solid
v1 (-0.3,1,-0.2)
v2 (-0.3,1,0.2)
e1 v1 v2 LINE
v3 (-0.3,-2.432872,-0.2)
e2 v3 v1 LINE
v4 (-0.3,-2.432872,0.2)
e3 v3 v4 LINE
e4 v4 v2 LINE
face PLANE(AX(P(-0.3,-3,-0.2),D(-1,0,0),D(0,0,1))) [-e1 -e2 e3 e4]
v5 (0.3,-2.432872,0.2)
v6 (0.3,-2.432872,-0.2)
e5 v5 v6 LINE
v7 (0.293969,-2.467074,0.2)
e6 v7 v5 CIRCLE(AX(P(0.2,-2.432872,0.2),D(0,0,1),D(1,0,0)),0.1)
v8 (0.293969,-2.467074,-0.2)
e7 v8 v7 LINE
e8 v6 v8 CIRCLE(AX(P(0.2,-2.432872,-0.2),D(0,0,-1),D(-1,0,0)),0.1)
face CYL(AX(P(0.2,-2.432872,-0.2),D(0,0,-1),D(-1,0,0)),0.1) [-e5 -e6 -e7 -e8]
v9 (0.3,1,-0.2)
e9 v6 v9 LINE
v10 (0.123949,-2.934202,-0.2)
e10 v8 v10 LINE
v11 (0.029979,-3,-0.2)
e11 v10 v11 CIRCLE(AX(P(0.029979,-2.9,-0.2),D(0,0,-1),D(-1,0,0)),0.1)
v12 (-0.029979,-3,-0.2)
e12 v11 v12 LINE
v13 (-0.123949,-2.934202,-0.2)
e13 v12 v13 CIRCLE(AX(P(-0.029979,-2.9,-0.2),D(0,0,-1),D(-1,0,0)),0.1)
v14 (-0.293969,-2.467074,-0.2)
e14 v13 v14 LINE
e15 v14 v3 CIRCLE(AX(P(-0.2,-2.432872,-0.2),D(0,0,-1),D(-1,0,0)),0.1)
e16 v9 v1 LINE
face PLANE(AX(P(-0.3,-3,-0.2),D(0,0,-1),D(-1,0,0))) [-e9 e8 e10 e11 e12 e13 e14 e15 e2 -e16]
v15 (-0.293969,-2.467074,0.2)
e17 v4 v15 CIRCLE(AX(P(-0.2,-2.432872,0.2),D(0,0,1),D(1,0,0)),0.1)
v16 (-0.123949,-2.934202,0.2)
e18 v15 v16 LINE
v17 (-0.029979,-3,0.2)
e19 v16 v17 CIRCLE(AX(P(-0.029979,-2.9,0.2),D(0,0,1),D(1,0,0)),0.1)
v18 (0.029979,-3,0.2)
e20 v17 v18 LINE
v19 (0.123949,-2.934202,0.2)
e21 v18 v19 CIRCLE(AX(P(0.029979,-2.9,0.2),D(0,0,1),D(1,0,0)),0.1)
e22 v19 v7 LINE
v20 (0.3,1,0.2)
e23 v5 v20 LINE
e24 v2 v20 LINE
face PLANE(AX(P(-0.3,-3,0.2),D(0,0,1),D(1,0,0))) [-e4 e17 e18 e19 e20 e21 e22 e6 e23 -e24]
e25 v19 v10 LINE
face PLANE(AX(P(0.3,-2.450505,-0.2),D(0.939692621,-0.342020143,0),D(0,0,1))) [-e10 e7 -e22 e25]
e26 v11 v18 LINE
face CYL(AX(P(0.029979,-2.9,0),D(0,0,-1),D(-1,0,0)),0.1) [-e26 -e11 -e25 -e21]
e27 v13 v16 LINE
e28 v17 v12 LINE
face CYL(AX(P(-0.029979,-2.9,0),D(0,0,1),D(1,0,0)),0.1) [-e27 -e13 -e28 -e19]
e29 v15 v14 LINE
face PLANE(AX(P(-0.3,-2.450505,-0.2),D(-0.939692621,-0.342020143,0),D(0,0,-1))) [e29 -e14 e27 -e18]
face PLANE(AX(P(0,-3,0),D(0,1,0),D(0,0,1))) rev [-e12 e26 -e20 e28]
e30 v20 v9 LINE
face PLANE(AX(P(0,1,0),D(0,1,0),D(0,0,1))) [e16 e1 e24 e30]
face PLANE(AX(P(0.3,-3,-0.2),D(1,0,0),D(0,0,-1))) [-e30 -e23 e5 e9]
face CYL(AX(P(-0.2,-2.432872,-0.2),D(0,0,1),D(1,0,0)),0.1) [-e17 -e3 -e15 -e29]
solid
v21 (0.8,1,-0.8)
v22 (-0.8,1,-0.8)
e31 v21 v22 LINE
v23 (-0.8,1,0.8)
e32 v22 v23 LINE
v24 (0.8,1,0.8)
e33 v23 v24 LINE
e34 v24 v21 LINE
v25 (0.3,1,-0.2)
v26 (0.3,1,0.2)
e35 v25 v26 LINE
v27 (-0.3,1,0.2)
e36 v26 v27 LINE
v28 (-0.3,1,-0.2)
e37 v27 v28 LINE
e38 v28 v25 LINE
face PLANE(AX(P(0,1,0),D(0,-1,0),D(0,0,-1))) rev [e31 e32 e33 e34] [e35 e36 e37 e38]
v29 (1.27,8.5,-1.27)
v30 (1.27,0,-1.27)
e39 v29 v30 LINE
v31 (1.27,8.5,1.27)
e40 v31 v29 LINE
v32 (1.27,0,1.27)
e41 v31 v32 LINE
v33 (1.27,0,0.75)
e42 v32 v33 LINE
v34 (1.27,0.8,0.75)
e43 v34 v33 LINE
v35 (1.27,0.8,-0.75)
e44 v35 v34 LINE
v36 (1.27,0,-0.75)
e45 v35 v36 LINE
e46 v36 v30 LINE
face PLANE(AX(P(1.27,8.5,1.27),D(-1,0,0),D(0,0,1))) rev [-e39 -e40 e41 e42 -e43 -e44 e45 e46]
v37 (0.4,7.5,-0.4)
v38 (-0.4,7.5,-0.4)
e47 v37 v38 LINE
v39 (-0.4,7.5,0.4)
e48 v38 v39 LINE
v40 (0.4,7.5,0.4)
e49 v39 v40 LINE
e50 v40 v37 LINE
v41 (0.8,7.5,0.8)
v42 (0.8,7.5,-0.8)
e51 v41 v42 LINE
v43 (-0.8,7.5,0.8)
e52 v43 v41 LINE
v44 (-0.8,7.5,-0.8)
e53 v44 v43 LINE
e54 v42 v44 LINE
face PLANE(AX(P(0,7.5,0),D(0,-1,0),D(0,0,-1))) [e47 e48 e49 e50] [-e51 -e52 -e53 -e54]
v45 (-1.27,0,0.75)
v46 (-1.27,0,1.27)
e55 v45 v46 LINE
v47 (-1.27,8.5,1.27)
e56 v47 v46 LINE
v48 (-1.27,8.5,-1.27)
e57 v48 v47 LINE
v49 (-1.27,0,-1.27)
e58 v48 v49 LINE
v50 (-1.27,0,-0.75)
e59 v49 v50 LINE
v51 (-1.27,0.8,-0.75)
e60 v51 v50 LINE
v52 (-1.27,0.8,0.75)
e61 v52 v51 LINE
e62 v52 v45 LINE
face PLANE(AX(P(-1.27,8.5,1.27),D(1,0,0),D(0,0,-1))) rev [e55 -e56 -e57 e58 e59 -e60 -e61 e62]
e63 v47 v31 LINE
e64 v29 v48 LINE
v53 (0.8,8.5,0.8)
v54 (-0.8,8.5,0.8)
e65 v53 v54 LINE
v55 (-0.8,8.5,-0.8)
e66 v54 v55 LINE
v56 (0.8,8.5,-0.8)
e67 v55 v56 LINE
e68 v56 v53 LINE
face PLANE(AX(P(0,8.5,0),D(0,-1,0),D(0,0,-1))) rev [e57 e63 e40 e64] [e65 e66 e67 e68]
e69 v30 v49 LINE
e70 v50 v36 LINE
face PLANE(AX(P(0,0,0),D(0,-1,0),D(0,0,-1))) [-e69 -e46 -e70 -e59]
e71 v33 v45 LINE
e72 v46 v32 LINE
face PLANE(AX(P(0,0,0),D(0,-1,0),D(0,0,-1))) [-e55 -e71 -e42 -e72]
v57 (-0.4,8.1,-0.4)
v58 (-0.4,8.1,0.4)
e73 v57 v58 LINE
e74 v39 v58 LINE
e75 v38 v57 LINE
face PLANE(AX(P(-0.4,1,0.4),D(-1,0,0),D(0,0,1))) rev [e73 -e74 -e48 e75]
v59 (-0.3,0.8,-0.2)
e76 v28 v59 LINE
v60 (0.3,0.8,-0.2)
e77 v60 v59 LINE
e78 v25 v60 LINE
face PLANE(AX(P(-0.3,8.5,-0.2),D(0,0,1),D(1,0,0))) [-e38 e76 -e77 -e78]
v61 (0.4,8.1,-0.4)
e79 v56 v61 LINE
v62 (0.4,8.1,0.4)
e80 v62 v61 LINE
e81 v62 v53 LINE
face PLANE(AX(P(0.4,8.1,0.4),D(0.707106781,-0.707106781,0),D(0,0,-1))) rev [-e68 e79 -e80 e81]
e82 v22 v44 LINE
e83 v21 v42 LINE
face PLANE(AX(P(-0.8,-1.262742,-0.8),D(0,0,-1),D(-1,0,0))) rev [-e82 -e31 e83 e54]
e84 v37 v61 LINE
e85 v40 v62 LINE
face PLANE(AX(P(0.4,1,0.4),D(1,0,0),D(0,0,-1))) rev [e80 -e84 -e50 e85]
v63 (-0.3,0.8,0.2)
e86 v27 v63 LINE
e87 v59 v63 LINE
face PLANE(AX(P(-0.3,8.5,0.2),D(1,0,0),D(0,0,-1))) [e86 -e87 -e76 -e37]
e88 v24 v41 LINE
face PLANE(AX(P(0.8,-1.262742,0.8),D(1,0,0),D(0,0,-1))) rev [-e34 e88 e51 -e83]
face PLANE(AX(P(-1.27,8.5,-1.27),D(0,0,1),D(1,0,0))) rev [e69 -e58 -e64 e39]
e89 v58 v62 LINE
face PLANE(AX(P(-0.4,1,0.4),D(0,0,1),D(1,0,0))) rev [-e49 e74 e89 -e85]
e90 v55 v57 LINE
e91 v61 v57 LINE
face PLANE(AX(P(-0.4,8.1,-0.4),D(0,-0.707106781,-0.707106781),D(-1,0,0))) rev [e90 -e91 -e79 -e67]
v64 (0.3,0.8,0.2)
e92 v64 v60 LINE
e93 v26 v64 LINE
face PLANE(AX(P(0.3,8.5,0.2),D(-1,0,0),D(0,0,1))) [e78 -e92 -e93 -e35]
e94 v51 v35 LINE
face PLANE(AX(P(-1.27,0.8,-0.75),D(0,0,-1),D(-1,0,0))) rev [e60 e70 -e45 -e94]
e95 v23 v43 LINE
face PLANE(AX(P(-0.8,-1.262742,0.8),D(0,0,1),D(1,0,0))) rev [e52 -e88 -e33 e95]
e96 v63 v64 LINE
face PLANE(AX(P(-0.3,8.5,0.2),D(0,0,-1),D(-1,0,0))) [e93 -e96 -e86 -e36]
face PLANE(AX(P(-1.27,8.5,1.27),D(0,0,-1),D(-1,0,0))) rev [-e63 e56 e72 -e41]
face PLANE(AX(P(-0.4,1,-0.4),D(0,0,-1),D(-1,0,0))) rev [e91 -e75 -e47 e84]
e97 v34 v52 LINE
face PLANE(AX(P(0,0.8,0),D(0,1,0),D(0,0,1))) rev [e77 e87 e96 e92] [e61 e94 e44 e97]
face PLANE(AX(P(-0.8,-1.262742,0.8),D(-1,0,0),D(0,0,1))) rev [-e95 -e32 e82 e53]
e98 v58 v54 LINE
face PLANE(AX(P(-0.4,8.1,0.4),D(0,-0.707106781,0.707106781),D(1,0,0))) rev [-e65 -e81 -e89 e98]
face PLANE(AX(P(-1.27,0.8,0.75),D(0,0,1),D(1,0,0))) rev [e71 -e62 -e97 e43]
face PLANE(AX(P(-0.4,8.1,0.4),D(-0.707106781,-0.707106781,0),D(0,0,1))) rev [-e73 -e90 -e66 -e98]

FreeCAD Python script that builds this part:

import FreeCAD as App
import Part
import Sketcher
Q = App.Units.Quantity


def edges_at(feature, points):
    """Names of the edges that pass closest to the given points."""
    edges = feature.Shape.Edges
    near = lambda p: min(range(len(edges)), key=lambda i: edges[i].distToShape(Part.Vertex(*p))[0])
    return sorted({f"Edge{near(p) + 1}" for p in points})

doc = App.newDocument("Part")
body = doc.addObject("PartDesign::Body", "Body")

# Sketch on XZ plane
sketch1 = doc.addObject("Sketcher::SketchObject", "Sketch")
body.addObject(sketch1)
sketch1.AttachmentSupport = (doc.XZ_Plane, [""])
sketch1.MapMode = "FlatFace"
sketch1.addGeometry(Part.LineSegment(App.Vector(-1.27, -1.27, 0), App.Vector(-1.27, 1.27, 0)), False)
sketch1.addGeometry(Part.LineSegment(App.Vector(-1.27, 1.27, 0), App.Vector(1.27, 1.27, 0)), False)
sketch1.addGeometry(Part.LineSegment(App.Vector(1.27, 1.27, 0), App.Vector(1.27, -1.27, 0)), False)
sketch1.addGeometry(Part.LineSegment(App.Vector(1.27, -1.27, 0), App.Vector(-1.27, -1.27, 0)), False)
sketch1.addGeometry(Part.LineSegment(App.Vector(0.3, 0.2, 0), App.Vector(-0.3, 0.2, 0)), False)
sketch1.addGeometry(Part.LineSegment(App.Vector(-0.3, 0.2, 0), App.Vector(-0.3, -0.2, 0)), False)
sketch1.addGeometry(Part.LineSegment(App.Vector(-0.3, -0.2, 0), App.Vector(0.3, -0.2, 0)), False)
sketch1.addGeometry(Part.LineSegment(App.Vector(0.3, -0.2, 0), App.Vector(0.3, 0.2, 0)), False)
sketch1.addConstraint(Sketcher.Constraint("Coincident", 0, 2, 1, 1))
sketch1.addConstraint(Sketcher.Constraint("Coincident", 1, 2, 2, 1))
sketch1.addConstraint(Sketcher.Constraint("Coincident", 2, 2, 3, 1))
sketch1.addConstraint(Sketcher.Constraint("Coincident", 3, 2, 0, 1))
sketch1.addConstraint(Sketcher.Constraint("Coincident", 4, 2, 5, 1))
sketch1.addConstraint(Sketcher.Constraint("Coincident", 5, 2, 6, 1))
sketch1.addConstraint(Sketcher.Constraint("Coincident", 6, 2, 7, 1))
sketch1.addConstraint(Sketcher.Constraint("Coincident", 7, 2, 4, 1))
sketch1.addConstraint(Sketcher.Constraint("Vertical", 0))
sketch1.addConstraint(Sketcher.Constraint("Horizontal", 1))
sketch1.addConstraint(Sketcher.Constraint("Vertical", 2))
sketch1.addConstraint(Sketcher.Constraint("Horizontal", 3))
sketch1.addConstraint(Sketcher.Constraint("Horizontal", 4))
sketch1.addConstraint(Sketcher.Constraint("Vertical", 5))
sketch1.addConstraint(Sketcher.Constraint("Horizontal", 6))
sketch1.addConstraint(Sketcher.Constraint("Vertical", 7))
sketch1.addConstraint(Sketcher.Constraint("Symmetric", 0, 2, 2, 2, -1, 1))
sketch1.addConstraint(Sketcher.Constraint("Symmetric", 4, 2, 6, 2, -1, 1))
sketch1.addConstraint(Sketcher.Constraint("Equal", 3, 0))
sketch1.addConstraint(Sketcher.Constraint("DistanceX", 4, 2, 4, 1, Q("0.6 mm")))
sketch1.addConstraint(Sketcher.Constraint("DistanceY", 5, 2, 5, 1, Q("0.4 mm")))
sketch1.addConstraint(Sketcher.Constraint("DistanceX", 1, 1, 1, 2, Q("2.54 mm")))
pad1 = doc.addObject("PartDesign::Pad", "Pad")
body.addObject(pad1)
pad1.Profile = sketch1
pad1.Length = 8.5
pad1.Reversed = True

# Sketch on XZ plane
sketch2 = doc.addObject("Sketcher::SketchObject", "Sketch001")
body.addObject(sketch2)
sketch2.AttachmentSupport = (doc.XZ_Plane, [""])
sketch2.MapMode = "FlatFace"
sketch2.AttachmentOffset = App.Placement(App.Vector(0, 0, -8.5), App.Rotation())
sketch2.addGeometry(Part.LineSegment(App.Vector(-0.4, -0.4, 0), App.Vector(-0.4, 0.4, 0)), False)
sketch2.addGeometry(Part.LineSegment(App.Vector(-0.4, 0.4, 0), App.Vector(0.4, 0.4, 0)), False)
sketch2.addGeometry(Part.LineSegment(App.Vector(0.4, 0.4, 0), App.Vector(0.4, -0.4, 0)), False)
sketch2.addGeometry(Part.LineSegment(App.Vector(0.4, -0.4, 0), App.Vector(-0.4, -0.4, 0)), False)
sketch2.addConstraint(Sketcher.Constraint("Coincident", 0, 2, 1, 1))
sketch2.addConstraint(Sketcher.Constraint("Coincident", 1, 2, 2, 1))
sketch2.addConstraint(Sketcher.Constraint("Coincident", 2, 2, 3, 1))
sketch2.addConstraint(Sketcher.Constraint("Coincident", 3, 2, 0, 1))
sketch2.addConstraint(Sketcher.Constraint("Vertical", 0))
sketch2.addConstraint(Sketcher.Constraint("Horizontal", 1))
sketch2.addConstraint(Sketcher.Constraint("Vertical", 2))
sketch2.addConstraint(Sketcher.Constraint("Horizontal", 3))
sketch2.addConstraint(Sketcher.Constraint("Symmetric", 0, 2, 2, 2, -1, 1))
sketch2.addConstraint(Sketcher.Constraint("Equal", 3, 0))
sketch2.addConstraint(Sketcher.Constraint("DistanceX", 1, 1, 1, 2, Q("0.8 mm")))
pocket1 = doc.addObject("PartDesign::Pocket", "Pocket")
body.addObject(pocket1)
pocket1.Profile = sketch2
pocket1.Length = 7.5
pocket1.Reversed = True
doc.recompute()

chamfer = doc.addObject("PartDesign::Chamfer", "Chamfer")
body.addObject(chamfer)
chamfer.Base = (pocket1, edges_at(pocket1, [
    (0.4, 8.5, 0),
    (0, 8.5, -0.4),
    (-0.4, 8.5, 0),
    (0, 8.5, 0.4),
]))
chamfer.Size = 0.4

# Sketch on XZ plane
sketch3 = doc.addObject("Sketcher::SketchObject", "Sketch002")
body.addObject(sketch3)
sketch3.AttachmentSupport = (doc.XZ_Plane, [""])
sketch3.MapMode = "FlatFace"
sketch3.AttachmentOffset = App.Placement(App.Vector(0, 0, -7.5), App.Rotation())
sketch3.addGeometry(Part.LineSegment(App.Vector(-0.8, -0.8, 0), App.Vector(-0.8, 0.8, 0)), False)
sketch3.addGeometry(Part.LineSegment(App.Vector(-0.8, 0.8, 0), App.Vector(0.8, 0.8, 0)), False)
sketch3.addGeometry(Part.LineSegment(App.Vector(0.8, 0.8, 0), App.Vector(0.8, -0.8, 0)), False)
sketch3.addGeometry(Part.LineSegment(App.Vector(0.8, -0.8, 0), App.Vector(-0.8, -0.8, 0)), False)
sketch3.addConstraint(Sketcher.Constraint("Coincident", 0, 2, 1, 1))
sketch3.addConstraint(Sketcher.Constraint("Coincident", 1, 2, 2, 1))
sketch3.addConstraint(Sketcher.Constraint("Coincident", 2, 2, 3, 1))
sketch3.addConstraint(Sketcher.Constraint("Coincident", 3, 2, 0, 1))
sketch3.addConstraint(Sketcher.Constraint("Vertical", 0))
sketch3.addConstraint(Sketcher.Constraint("Horizontal", 1))
sketch3.addConstraint(Sketcher.Constraint("Vertical", 2))
sketch3.addConstraint(Sketcher.Constraint("Horizontal", 3))
sketch3.addConstraint(Sketcher.Constraint("Symmetric", 0, 2, 2, 2, -1, 1))
sketch3.addConstraint(Sketcher.Constraint("Equal", 3, 0))
sketch3.addConstraint(Sketcher.Constraint("DistanceX", 1, 1, 1, 2, Q("1.6 mm")))
pocket2 = doc.addObject("PartDesign::Pocket", "Pocket001")
body.addObject(pocket2)
pocket2.Profile = sketch3
pocket2.Length = 6.5
pocket2.Reversed = True

# Sketch on XZ plane
sketch4 = doc.addObject("Sketcher::SketchObject", "Sketch003")
body.addObject(sketch4)
sketch4.AttachmentSupport = (doc.XZ_Plane, [""])
sketch4.MapMode = "FlatFace"
sketch4.addGeometry(Part.LineSegment(App.Vector(-1.3, 0.8, 0), App.Vector(-1.3, -0.8, 0)), False)
sketch4.addGeometry(Part.LineSegment(App.Vector(-1.3, -0.8, 0), App.Vector(1.3, -0.8, 0)), False)
sketch4.addGeometry(Part.LineSegment(App.Vector(1.3, -0.8, 0), App.Vector(1.3, 0.8, 0)), False)
sketch4.addGeometry(Part.LineSegment(App.Vector(1.3, 0.8, 0), App.Vector(-1.3, 0.8, 0)), False)
sketch4.addConstraint(Sketcher.Constraint("Coincident", 0, 2, 1, 1))
sketch4.addConstraint(Sketcher.Constraint("Coincident", 1, 2, 2, 1))
sketch4.addConstraint(Sketcher.Constraint("Coincident", 2, 2, 3, 1))
sketch4.addConstraint(Sketcher.Constraint("Coincident", 3, 2, 0, 1))
sketch4.addConstraint(Sketcher.Constraint("Vertical", 0))
sketch4.addConstraint(Sketcher.Constraint("Horizontal", 1))
sketch4.addConstraint(Sketcher.Constraint("Vertical", 2))
sketch4.addConstraint(Sketcher.Constraint("Horizontal", 3))
sketch4.addConstraint(Sketcher.Constraint("Symmetric", 0, 2, 2, 2, -1, 1))
sketch4.addConstraint(Sketcher.Constraint("DistanceY", 0, 2, 0, 1, Q("1.5 mm")))
sketch4.addConstraint(Sketcher.Constraint("DistanceX", 1, 1, 1, 2, Q("2.54 mm")))
pocket3 = doc.addObject("PartDesign::Pocket", "Pocket002")
body.addObject(pocket3)
pocket3.Profile = sketch4
pocket3.Length = 0.8
body2 = doc.addObject("PartDesign::Body", "Body001")

# Sketch on XZ plane
sketch5 = doc.addObject("Sketcher::SketchObject", "Sketch004")
body2.addObject(sketch5)
sketch5.AttachmentSupport = (doc.getObject("XZ_Plane001"), [""])
sketch5.MapMode = "FlatFace"
sketch5.AttachmentOffset = App.Placement(App.Vector(0, 0, -1), App.Rotation())
sketch5.addGeometry(Part.LineSegment(App.Vector(-0.3, -0.2, 0), App.Vector(-0.3, 0.2, 0)), False)
sketch5.addGeometry(Part.LineSegment(App.Vector(-0.3, 0.2, 0), App.Vector(0.3, 0.2, 0)), False)
sketch5.addGeometry(Part.LineSegment(App.Vector(0.3, 0.2, 0), App.Vector(0.3, -0.2, 0)), False)
sketch5.addGeometry(Part.LineSegment(App.Vector(0.3, -0.2, 0), App.Vector(-0.3, -0.2, 0)), False)
sketch5.addConstraint(Sketcher.Constraint("Coincident", 0, 2, 1, 1))
sketch5.addConstraint(Sketcher.Constraint("Coincident", 1, 2, 2, 1))
sketch5.addConstraint(Sketcher.Constraint("Coincident", 2, 2, 3, 1))
sketch5.addConstraint(Sketcher.Constraint("Coincident", 3, 2, 0, 1))
sketch5.addConstraint(Sketcher.Constraint("Vertical", 0))
sketch5.addConstraint(Sketcher.Constraint("Horizontal", 1))
sketch5.addConstraint(Sketcher.Constraint("Vertical", 2))
sketch5.addConstraint(Sketcher.Constraint("Horizontal", 3))
sketch5.addConstraint(Sketcher.Constraint("Symmetric", 0, 2, 2, 2, -1, 1))
sketch5.addConstraint(Sketcher.Constraint("DistanceX", 1, 1, 1, 2, Q("0.6 mm")))
sketch5.addConstraint(Sketcher.Constraint("DistanceY", 0, 1, 0, 2, Q("0.4 mm")))
pad2 = doc.addObject("PartDesign::Pad", "Pad001")
body2.addObject(pad2)
pad2.Profile = sketch5
pad2.Length = 4
doc.recompute()

chamfer2 = doc.addObject("PartDesign::Chamfer", "Chamfer001")
body2.addObject(chamfer2)
chamfer2.Base = (pad2, edges_at(pad2, [(-0.3, -3, 0), (0.3, -3, 0)]))
chamfer2.ChamferType = "Two distances"
chamfer2.Size = 0.2
chamfer2.Size2 = 0.549495
chamfer2.FlipDirection = True
doc.recompute()

fillet = doc.addObject("PartDesign::Fillet", "Fillet")
body2.addObject(fillet)
fillet.Base = (chamfer2, edges_at(chamfer2, [
    (-0.3, -2.451, 0),
    (0.1, -3, 0),
    (-0.1, -3, 0),
    (0.3, -2.451, 0),
]))
fillet.Radius = 0.1

doc.recompute()
